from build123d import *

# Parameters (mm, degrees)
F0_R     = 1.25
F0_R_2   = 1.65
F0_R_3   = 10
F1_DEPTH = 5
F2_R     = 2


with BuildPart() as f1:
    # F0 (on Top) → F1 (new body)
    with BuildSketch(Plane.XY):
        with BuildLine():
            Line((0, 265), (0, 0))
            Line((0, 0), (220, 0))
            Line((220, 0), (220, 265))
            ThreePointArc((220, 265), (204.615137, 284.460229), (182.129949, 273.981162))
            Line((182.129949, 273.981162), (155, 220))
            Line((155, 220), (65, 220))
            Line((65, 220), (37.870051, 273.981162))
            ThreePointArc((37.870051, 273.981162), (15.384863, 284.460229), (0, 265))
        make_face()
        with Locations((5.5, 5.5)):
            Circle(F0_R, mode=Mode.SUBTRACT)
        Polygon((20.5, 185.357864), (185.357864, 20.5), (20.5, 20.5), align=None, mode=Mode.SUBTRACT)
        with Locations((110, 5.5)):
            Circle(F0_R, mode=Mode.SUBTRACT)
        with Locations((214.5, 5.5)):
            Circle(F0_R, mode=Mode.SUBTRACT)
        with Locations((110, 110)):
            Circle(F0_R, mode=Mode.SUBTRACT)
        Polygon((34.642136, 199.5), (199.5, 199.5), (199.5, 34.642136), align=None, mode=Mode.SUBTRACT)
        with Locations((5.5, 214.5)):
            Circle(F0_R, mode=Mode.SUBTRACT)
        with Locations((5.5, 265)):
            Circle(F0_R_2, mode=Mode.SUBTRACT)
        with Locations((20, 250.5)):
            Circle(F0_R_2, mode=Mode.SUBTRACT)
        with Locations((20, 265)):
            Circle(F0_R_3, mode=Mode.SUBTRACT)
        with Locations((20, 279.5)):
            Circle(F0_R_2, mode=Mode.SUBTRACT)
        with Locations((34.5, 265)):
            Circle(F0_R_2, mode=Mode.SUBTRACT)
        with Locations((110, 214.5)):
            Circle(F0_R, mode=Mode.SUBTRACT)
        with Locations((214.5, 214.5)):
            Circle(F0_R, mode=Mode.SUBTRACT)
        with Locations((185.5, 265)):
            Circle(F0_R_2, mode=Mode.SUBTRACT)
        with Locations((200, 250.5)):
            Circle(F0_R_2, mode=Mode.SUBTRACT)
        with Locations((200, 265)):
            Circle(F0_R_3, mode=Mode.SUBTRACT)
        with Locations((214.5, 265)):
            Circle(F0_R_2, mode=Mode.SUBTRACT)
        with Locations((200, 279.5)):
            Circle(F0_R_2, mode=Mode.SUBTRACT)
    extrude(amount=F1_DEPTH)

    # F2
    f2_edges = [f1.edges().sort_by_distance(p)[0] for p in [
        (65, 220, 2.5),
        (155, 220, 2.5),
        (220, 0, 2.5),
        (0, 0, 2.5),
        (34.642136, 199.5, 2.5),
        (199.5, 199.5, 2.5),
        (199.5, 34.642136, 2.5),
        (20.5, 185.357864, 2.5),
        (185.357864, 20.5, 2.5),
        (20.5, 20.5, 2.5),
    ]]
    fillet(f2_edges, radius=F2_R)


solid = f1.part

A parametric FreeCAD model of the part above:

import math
import FreeCAD as App
import Part
import Sketcher

V = App.Vector


def edges_at(feature, points):
    """Names of the edges that pass closest to the given points."""
    edges = feature.Shape.Edges
    near = lambda p: min(range(len(edges)), key=lambda i: edges[i].distToShape(Part.Vertex(*p))[0])
    return sorted({f"Edge{near(p) + 1}" for p in points})


def add_polygon(sketch, points):
    """Adds a closed chain of lines whose ends are joined by coincident constraints."""
    first, n = sketch.GeometryCount, len(points)
    for a, b in zip(points, points[1:] + points[:1]):
        sketch.addGeometry(Part.LineSegment(App.Vector(*a, 0), App.Vector(*b, 0)), False)
    for i in range(n):
        sketch.addConstraint(Sketcher.Constraint("Coincident", first + i, 2, first + (i + 1) % n, 1))

doc = App.newDocument("Part")
body = doc.addObject("PartDesign::Body", "Body")

# Sketch on XY plane
sketch1 = body.newObject("Sketcher::SketchObject", "Sketch")
sketch1.AttachmentSupport = (doc.getObject("XY_Plane"), [""])
sketch1.MapMode = "FlatFace"
sketch1.addGeometry(Part.LineSegment(V(0, 265, 0), V(0, 0, 0)), False)  # 0
sketch1.addGeometry(Part.LineSegment(V(0, 0, 0), V(220, 0, 0)), False)  # 1
sketch1.addGeometry(Part.LineSegment(V(220, 0, 0), V(220, 265, 0)), False)  # 2
sketch1.addGeometry(Part.ArcOfCircle(Part.Circle(V(200, 265, 0), V(0, 0, 1), 20), math.radians(0), math.radians(153)), False)  # 3
sketch1.addGeometry(Part.LineSegment(V(182.1, 274, 0), V(155, 220, 0)), False)  # 4
sketch1.addGeometry(Part.LineSegment(V(155, 220, 0), V(65, 220, 0)), False)  # 5
sketch1.addGeometry(Part.LineSegment(V(65, 220, 0), V(37.9, 274, 0)), False)  # 6
sketch1.addGeometry(Part.ArcOfCircle(Part.Circle(V(20, 265, 0), V(0, 0, 1), 20), math.radians(27), math.radians(180)), False)  # 7
sketch1.addGeometry(Part.Circle(V(5.5, 5.5, 0), V(0, 0, 1), 1.2), False)  # 8
add_polygon(sketch1, [(20.5, 20.5), (20.5, 185.4), (185.4, 20.5)])  # lines 9-11
sketch1.addGeometry(Part.Circle(V(110, 5.5, 0), V(0, 0, 1), 1.2), False)  # 12
sketch1.addGeometry(Part.Circle(V(214.5, 5.5, 0), V(0, 0, 1), 1.2), False)  # 13
sketch1.addGeometry(Part.Circle(V(110, 110, 0), V(0, 0, 1), 1.2), False)  # 14
add_polygon(sketch1, [(199.5, 34.6), (34.6, 199.5), (199.5, 199.5)])  # lines 15-17
sketch1.addGeometry(Part.Circle(V(5.5, 214.5, 0), V(0, 0, 1), 1.2), False)  # 18
sketch1.addGeometry(Part.Circle(V(20, 250.5, 0), V(0, 0, 1), 1.6), False)  # 19
sketch1.addGeometry(Part.Circle(V(5.5, 265, 0), V(0, 0, 1), 1.6), False)  # 20
sketch1.addGeometry(Part.Circle(V(20, 265, 0), V(0, 0, 1), 10), False)  # 21
sketch1.addGeometry(Part.Circle(V(20, 279.5, 0), V(0, 0, 1), 1.6), False)  # 22
sketch1.addGeometry(Part.Circle(V(34.5, 265, 0), V(0, 0, 1), 1.6), False)  # 23
sketch1.addGeometry(Part.Circle(V(110, 214.5, 0), V(0, 0, 1), 1.2), False)  # 24
sketch1.addGeometry(Part.Circle(V(214.5, 214.5, 0), V(0, 0, 1), 1.2), False)  # 25
sketch1.addGeometry(Part.Circle(V(185.5, 265, 0), V(0, 0, 1), 1.6), False)  # 26
sketch1.addGeometry(Part.Circle(V(200, 250.5, 0), V(0, 0, 1), 1.6), False)  # 27
sketch1.addGeometry(Part.Circle(V(200, 265, 0), V(0, 0, 1), 10), False)  # 28
sketch1.addGeometry(Part.Circle(V(200, 279.5, 0), V(0, 0, 1), 1.6), False)  # 29
sketch1.addGeometry(Part.Circle(V(214.5, 265, 0), V(0, 0, 1), 1.6), False)  # 30
sketch1.addConstraint([
    Sketcher.Constraint("Coincident", 0, 2, 1, 1),
    Sketcher.Constraint("Coincident", 1, 2, 2, 1),
    Sketcher.Constraint("Tangent", 2, 2, 3, 1),
    Sketcher.Constraint("Tangent", 3, 2, 4, 1),
    Sketcher.Constraint("Coincident", 4, 2, 5, 1),
    Sketcher.Constraint("Coincident", 5, 2, 6, 1),
    Sketcher.Constraint("Tangent", 6, 2, 7, 1),
    Sketcher.Constraint("Tangent", 7, 2, 0, 1),
    Sketcher.Constraint("Vertical", 0),
    Sketcher.Constraint("Horizontal", 1),
    Sketcher.Constraint("Vertical", 2),
    Sketcher.Constraint("Horizontal", 5),
    Sketcher.Constraint("Vertical", 9),
    Sketcher.Constraint("Horizontal", 11),
    Sketcher.Constraint("Horizontal", 16),
    Sketcher.Constraint("Vertical", 17),
    Sketcher.Constraint("Coincident", 0, 2, -1, 1),
    Sketcher.Constraint("Coincident", 21, 3, 7, 3),
    Sketcher.Constraint("Coincident", 28, 3, 3, 3),
    Sketcher.Constraint("Equal", 3, 7),
    Sketcher.Constraint("Equal", 8, 12),
    Sketcher.Constraint("Equal", 12, 13),
    Sketcher.Constraint("Equal", 13, 14),
    Sketcher.Constraint("Equal", 14, 18),
    Sketcher.Constraint("Equal", 19, 20),
    Sketcher.Constraint("Equal", 20, 22),
    Sketcher.Constraint("Equal", 22, 23),
    Sketcher.Constraint("Equal", 18, 24),
    Sketcher.Constraint("Equal", 24, 25),
    Sketcher.Constraint("Equal", 23, 26),
    Sketcher.Constraint("Equal", 26, 27),
    Sketcher.Constraint("Equal", 21, 28),
    Sketcher.Constraint("Equal", 27, 29),
    Sketcher.Constraint("Equal", 29, 30),
    Sketcher.Constraint("Parallel", 10, 15),
    Sketcher.Constraint("Horizontal", 3, 3, 7, 3),
    Sketcher.Constraint("Horizontal", 8, 3, 12, 3),
    Sketcher.Constraint("Horizontal", 12, 3, 13, 3),
    Sketcher.Constraint("Horizontal", 7, 3, 20, 3),
    Sketcher.Constraint("Horizontal", 21, 3, 23, 3),
    Sketcher.Constraint("Horizontal", 18, 3, 24, 3),
    Sketcher.Constraint("Horizontal", 24, 3, 25, 3),
    Sketcher.Constraint("Horizontal", 23, 3, 26, 3),
    Sketcher.Constraint("Horizontal", 19, 3, 27, 3),
    Sketcher.Constraint("Horizontal", 22, 3, 29, 3),
    Sketcher.Constraint("Horizontal", 28, 3, 30, 3),
    Sketcher.Constraint("Horizontal", 3, 2, 6, 2),
    Sketcher.Constraint("Vertical", 12, 3, 14, 3),
    Sketcher.Constraint("Vertical", 8, 3, 18, 3),
    Sketcher.Constraint("Vertical", 7, 3, 19, 3),
    Sketcher.Constraint("Vertical", 18, 3, 20, 3),
    Sketcher.Constraint("Vertical", 21, 3, 22, 3),
    Sketcher.Constraint("Vertical", 14, 3, 24, 3),
    Sketcher.Constraint("Vertical", 13, 3, 25, 3),
    Sketcher.Constraint("Vertical", 3, 3, 27, 3),
    Sketcher.Constraint("Vertical", 28, 3, 29, 3),
    Sketcher.Constraint("Vertical", 25, 3, 30, 3),
    Sketcher.Constraint("Equal", 11, 16),
    Sketcher.Constraint("Equal", 16, 9),
    Sketcher.Constraint("Diameter", 21, 20.0),
    Sketcher.Constraint("Radius", 3, 20.0),
    Sketcher.Constraint("Diameter", 8, 2.5),
    Sketcher.Constraint("Diameter", 19, 3.3),
    Sketcher.Constraint("DistanceX", 1, 1, 1, 2, 220.0),
    Sketcher.Constraint("DistanceX", 5, 2, 5, 1, 90.0),
    Sketcher.Constraint("DistanceY", 0, 2, 0, 1, 265.0),
    Sketcher.Constraint("DistanceX", -1, 1, 12, 3, 110.0),
    Sketcher.Constraint("DistanceY", -1, 1, 14, 3, 110.0),
    Sketcher.Constraint("DistanceY", -1, 1, 4, 2, 220.0),
    Sketcher.Constraint("DistanceX", 8, 3, 13, 3, 209.0),
    Sketcher.Constraint("DistanceY", 8, 3, 18, 3, 209.0),
    Sketcher.Constraint("DistanceY", 18, 3, 19, 3, 36.0),
    Sketcher.Constraint("DistanceY", 19, 3, 22, 3, 29.0),
    Sketcher.Constraint("DistanceX", 20, 3, 23, 3, 29.0),
    Sketcher.Constraint("DistanceX", 26, 3, 25, 3, 29.0),
    Sketcher.Constraint("DistanceX", 18, 3, 9, 2, 15.0),
    Sketcher.Constraint("DistanceY", 13, 3, 10, 2, 15.0),
    Sketcher.Constraint("DistanceY", 15, 2, 18, 3, 15.0),
    Sketcher.Constraint("DistanceX", 16, 2, 25, 3, 15.0),
    Sketcher.Constraint("DistanceX", -1, 1, 8, 3, 5.5),
    Sketcher.Constraint("DistanceY", -1, 1, 8, 3, 5.5),
    Sketcher.Constraint("DistanceX", 11, 2, 11, 1, 164.857864),
])
pad1 = body.newObject("PartDesign::Pad", "Pad")
pad1.Profile = sketch1
pad1.Length = 5
doc.recompute()

fillet = body.newObject("PartDesign::Fillet", "Fillet")
fillet.Base = (pad1, edges_at(pad1, [
    (65, 220, 2.5),
    (155, 220, 2.5),
    (220, 0, 2.5),
    (0, 0, 2.5),
    (34.642, 199.5, 2.5),
    (199.5, 199.5, 2.5),
    (199.5, 34.642, 2.5),
    (20.5, 185.358, 2.5),
    (185.358, 20.5, 2.5),
    (20.5, 20.5, 2.5),
]))
fillet.Radius = 2

doc.recompute()
